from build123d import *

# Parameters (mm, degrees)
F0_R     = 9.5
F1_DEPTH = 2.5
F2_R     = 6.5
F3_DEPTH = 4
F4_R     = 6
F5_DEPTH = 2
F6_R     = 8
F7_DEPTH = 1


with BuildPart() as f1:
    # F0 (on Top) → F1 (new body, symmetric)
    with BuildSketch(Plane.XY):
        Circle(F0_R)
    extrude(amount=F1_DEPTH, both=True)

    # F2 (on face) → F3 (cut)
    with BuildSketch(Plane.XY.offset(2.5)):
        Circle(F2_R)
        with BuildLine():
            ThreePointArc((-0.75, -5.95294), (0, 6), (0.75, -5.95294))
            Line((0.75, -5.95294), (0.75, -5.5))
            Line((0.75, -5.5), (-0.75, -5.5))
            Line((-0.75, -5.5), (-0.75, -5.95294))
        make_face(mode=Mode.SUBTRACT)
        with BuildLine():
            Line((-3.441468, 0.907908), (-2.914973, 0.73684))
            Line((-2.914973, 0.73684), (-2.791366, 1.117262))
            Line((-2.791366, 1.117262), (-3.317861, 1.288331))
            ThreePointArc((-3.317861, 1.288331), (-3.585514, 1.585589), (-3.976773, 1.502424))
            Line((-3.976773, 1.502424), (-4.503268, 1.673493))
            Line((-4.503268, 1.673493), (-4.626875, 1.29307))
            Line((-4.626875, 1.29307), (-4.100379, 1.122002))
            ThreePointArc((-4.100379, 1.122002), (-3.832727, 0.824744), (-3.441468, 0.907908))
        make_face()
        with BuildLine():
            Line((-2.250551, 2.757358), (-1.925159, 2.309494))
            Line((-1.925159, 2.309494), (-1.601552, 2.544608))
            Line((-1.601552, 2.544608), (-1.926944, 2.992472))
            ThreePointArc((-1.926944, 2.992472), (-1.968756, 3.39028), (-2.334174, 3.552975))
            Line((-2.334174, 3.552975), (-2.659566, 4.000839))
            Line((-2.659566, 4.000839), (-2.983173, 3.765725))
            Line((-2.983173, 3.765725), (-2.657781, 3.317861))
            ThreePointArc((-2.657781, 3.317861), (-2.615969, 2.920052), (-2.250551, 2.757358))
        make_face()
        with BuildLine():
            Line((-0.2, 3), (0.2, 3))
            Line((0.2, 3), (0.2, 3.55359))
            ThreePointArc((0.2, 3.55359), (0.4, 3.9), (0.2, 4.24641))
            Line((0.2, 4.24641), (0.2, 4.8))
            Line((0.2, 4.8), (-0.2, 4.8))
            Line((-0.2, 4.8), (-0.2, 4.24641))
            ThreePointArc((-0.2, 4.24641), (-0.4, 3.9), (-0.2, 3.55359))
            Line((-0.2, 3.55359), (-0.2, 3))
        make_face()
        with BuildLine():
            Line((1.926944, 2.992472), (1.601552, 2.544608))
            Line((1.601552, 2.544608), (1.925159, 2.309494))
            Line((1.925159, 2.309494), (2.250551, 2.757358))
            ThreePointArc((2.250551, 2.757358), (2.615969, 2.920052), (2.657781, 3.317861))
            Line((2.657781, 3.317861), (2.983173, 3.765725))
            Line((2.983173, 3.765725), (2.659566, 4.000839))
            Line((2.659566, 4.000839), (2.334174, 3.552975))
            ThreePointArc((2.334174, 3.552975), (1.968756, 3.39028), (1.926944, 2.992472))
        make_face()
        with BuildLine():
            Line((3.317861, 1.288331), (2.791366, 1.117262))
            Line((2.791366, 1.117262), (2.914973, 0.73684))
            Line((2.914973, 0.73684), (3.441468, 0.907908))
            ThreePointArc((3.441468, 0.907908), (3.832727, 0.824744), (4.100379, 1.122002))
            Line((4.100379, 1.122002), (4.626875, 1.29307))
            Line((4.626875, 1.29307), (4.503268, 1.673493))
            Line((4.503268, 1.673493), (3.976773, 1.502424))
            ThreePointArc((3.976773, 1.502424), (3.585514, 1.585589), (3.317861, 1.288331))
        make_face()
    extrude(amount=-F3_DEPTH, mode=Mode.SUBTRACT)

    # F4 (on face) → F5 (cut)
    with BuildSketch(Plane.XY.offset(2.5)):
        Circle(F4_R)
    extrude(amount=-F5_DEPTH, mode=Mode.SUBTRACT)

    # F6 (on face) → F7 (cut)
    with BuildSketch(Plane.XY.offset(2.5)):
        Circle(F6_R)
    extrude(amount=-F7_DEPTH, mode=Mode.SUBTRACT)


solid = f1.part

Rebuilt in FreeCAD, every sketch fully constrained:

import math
import FreeCAD as App
import Part
import Sketcher

V = App.Vector
Q = App.Units.Quantity

doc = App.newDocument("Part")
params = doc.addObject("Spreadsheet::Sheet", "Params")
for row, (alias, value) in enumerate([
    ("sketch1_diameter", "19 mm"),
    ("pad1_length", "5 mm"),
    ("sketch2_diameter", "13 mm"),
    ("sketch2_radius", "6 mm"),
    ("sketch2_radius2", "0.4 mm"),
    ("sketch2_width", "1.5 mm"),
    ("sketch2_width2", "0.4 mm"),
    ("pocket1_length", "4 mm"),
    ("sketch3_diameter", "12 mm"),
    ("pocket2_length", "2 mm"),
    ("sketch4_diameter", "16 mm"),
    ("pocket3_length", "1 mm"),
], start=1):
    params.set(f"A{row}", alias)
    params.set(f"B{row}", "=" + value)
    params.setAlias(f"B{row}", alias)

body = doc.addObject("PartDesign::Body", "Body")

# Sketch on XY plane
sketch1 = body.newObject("Sketcher::SketchObject", "Sketch")
sketch1.AttachmentSupport = (doc.getObject("XY_Plane"), [""])
sketch1.MapMode = "FlatFace"
sketch1.addGeometry(Part.Circle(V(0, 0, 0), V(0, 0, 1), 9.5), False)
sketch1.addConstraint([
    Sketcher.Constraint("Coincident", 0, 3, -1, 1),
    Sketcher.Constraint("Diameter", 0, Q("19 mm")),
])
sketch1.setExpression("Constraints[1]", "Params.sketch1_diameter")
pad1 = body.newObject("PartDesign::Pad", "Pad")
pad1.Profile = sketch1
pad1.setExpression("Length", "Params.pad1_length")
pad1.Midplane = True

# Sketch on XY plane
sketch2 = body.newObject("Sketcher::SketchObject", "Sketch001")
sketch2.AttachmentSupport = (doc.getObject("XY_Plane"), [""])
sketch2.MapMode = "FlatFace"
sketch2.AttachmentOffset = App.Placement(V(0, 0, 2.5), App.Rotation())
sketch2.addGeometry([
    Part.Circle(V(0, 0, 0), V(0, 0, 1), 6.5),  # 0
    Part.LineSegment(V(-0.75, -5.5, 0), V(-0.75, -5.95294, 0)),  # 1
    Part.ArcOfCircle(Part.Circle(V(0, 0, 0), V(0, 0, 1), 6), math.radians(-82.819244), math.radians(262.819244)),  # 2
    Part.LineSegment(V(0.75, -5.95294, 0), V(0.75, -5.5, 0)),  # 3
    Part.LineSegment(V(0.75, -5.5, 0), V(-0.75, -5.5, 0)),  # 4
    Part.LineSegment(V(-3.441468, 0.907908, 0), V(-2.914973, 0.73684, 0)),  # 5
    Part.LineSegment(V(-2.914973, 0.73684, 0), V(-2.791366, 1.117262, 0)),  # 6
    Part.LineSegment(V(-2.791366, 1.117262, 0), V(-3.317861, 1.288331, 0)),  # 7
    Part.ArcOfCircle(Part.Circle(V(-3.70912, 1.205166, 0), V(0, 0, 1), 0.4), math.radians(12.000066), math.radians(132.000011)),  # 8
    Part.LineSegment(V(-3.976773, 1.502424, 0), V(-4.503268, 1.673493, 0)),  # 9
    Part.LineSegment(V(-4.503268, 1.673493, 0), V(-4.626875, 1.29307, 0)),  # 10
    Part.LineSegment(V(-4.626875, 1.29307, 0), V(-4.100379, 1.122002, 0)),  # 11
    Part.ArcOfCircle(Part.Circle(V(-3.70912, 1.205167, 0), V(0, 0, 1), 0.4), math.radians(-168.000005), math.radians(-48.000127)),  # 12
    Part.LineSegment(V(-2.250551, 2.757358, 0), V(-1.925159, 2.309494, 0)),  # 13
    Part.LineSegment(V(-1.925159, 2.309494, 0), V(-1.601552, 2.544608, 0)),  # 14
    Part.LineSegment(V(-1.601552, 2.544608, 0), V(-1.926944, 2.992472, 0)),  # 15
    Part.ArcOfCircle(Part.Circle(V(-2.292363, 3.155166, 0), V(0, 0, 1), 0.400001), math.radians(-23.999796), math.radians(95.999895)),  # 16
    Part.LineSegment(V(-2.334174, 3.552975, 0), V(-2.659566, 4.000839, 0)),  # 17
    Part.LineSegment(V(-2.659566, 4.000839, 0), V(-2.983173, 3.765725, 0)),  # 18
    Part.LineSegment(V(-2.983173, 3.765725, 0), V(-2.657781, 3.317861, 0)),  # 19
    Part.ArcOfCircle(Part.Circle(V(-2.292363, 3.155167, 0), V(0, 0, 1), 0.4), math.radians(156.000058), math.radians(276.00004)),  # 20
    Part.LineSegment(V(-0.2, 3, 0), V(0.2, 3, 0)),  # 21
    Part.LineSegment(V(0.2, 3, 0), V(0.2, 3.55359, 0)),  # 22
    Part.ArcOfCircle(Part.Circle(V(0, 3.9, 0), V(0, 0, 1), 0.4), math.radians(-60.000023), math.radians(60.000023)),  # 23
    Part.LineSegment(V(0.2, 4.24641, 0), V(0.2, 4.8, 0)),  # 24
    Part.LineSegment(V(0.2, 4.8, 0), V(-0.2, 4.8, 0)),  # 25
    Part.LineSegment(V(-0.2, 4.8, 0), V(-0.2, 4.24641, 0)),  # 26
    Part.ArcOfCircle(Part.Circle(V(0, 3.9, 0), V(0, 0, 1), 0.4), math.radians(119.999977), math.radians(240.000023)),  # 27
    Part.LineSegment(V(-0.2, 3.55359, 0), V(-0.2, 3, 0)),  # 28
    Part.LineSegment(V(1.926944, 2.992472, 0), V(1.601552, 2.544608, 0)),  # 29
    Part.LineSegment(V(1.601552, 2.544608, 0), V(1.925159, 2.309494, 0)),  # 30
    Part.LineSegment(V(1.925159, 2.309494, 0), V(2.250551, 2.757358, 0)),  # 31
    Part.ArcOfCircle(Part.Circle(V(2.292363, 3.155167, 0), V(0, 0, 1), 0.4), math.radians(-96.00004), math.radians(23.999942)),  # 32
    Part.LineSegment(V(2.657781, 3.317861, 0), V(2.983173, 3.765725, 0)),  # 33
    Part.LineSegment(V(2.983173, 3.765725, 0), V(2.659566, 4.000839, 0)),  # 34
    Part.LineSegment(V(2.659566, 4.000839, 0), V(2.334174, 3.552975, 0)),  # 35
    Part.ArcOfCircle(Part.Circle(V(2.292363, 3.155166, 0), V(0, 0, 1), 0.400001), math.radians(84.000105), math.radians(203.999796)),  # 36
    Part.LineSegment(V(3.317861, 1.288331, 0), V(2.791366, 1.117262, 0)),  # 37
    Part.LineSegment(V(2.791366, 1.117262, 0), V(2.914973, 0.73684, 0)),  # 38
    Part.LineSegment(V(2.914973, 0.73684, 0), V(3.441468, 0.907908, 0)),  # 39
    Part.ArcOfCircle(Part.Circle(V(3.70912, 1.205167, 0), V(0, 0, 1), 0.4), math.radians(-131.999873), math.radians(-11.999995)),  # 40
    Part.LineSegment(V(4.100379, 1.122002, 0), V(4.626875, 1.29307, 0)),  # 41
    Part.LineSegment(V(4.626875, 1.29307, 0), V(4.503268, 1.673493, 0)),  # 42
    Part.LineSegment(V(4.503268, 1.673493, 0), V(3.976773, 1.502424, 0)),  # 43
    Part.ArcOfCircle(Part.Circle(V(3.70912, 1.205166, 0), V(0, 0, 1), 0.4), math.radians(47.999989), math.radians(167.999934)),  # 44
], False)
sketch2.addConstraint([
    Sketcher.Constraint("Coincident", 1, 2, 2, 2),
    Sketcher.Constraint("Coincident", 2, 1, 3, 1),
    Sketcher.Constraint("Coincident", 3, 2, 4, 1),
    Sketcher.Constraint("Coincident", 4, 2, 1, 1),
    Sketcher.Constraint("Coincident", 5, 2, 6, 1),
    Sketcher.Constraint("Coincident", 6, 2, 7, 1),
    Sketcher.Constraint("Coincident", 7, 2, 8, 1),
    Sketcher.Constraint("Coincident", 8, 2, 9, 1),
    Sketcher.Constraint("Coincident", 9, 2, 10, 1),
    Sketcher.Constraint("Coincident", 10, 2, 11, 1),
    Sketcher.Constraint("Coincident", 11, 2, 12, 1),
    Sketcher.Constraint("Coincident", 12, 2, 5, 1),
    Sketcher.Constraint("Coincident", 13, 2, 14, 1),
    Sketcher.Constraint("Coincident", 14, 2, 15, 1),
    Sketcher.Constraint("Coincident", 15, 2, 16, 1),
    Sketcher.Constraint("Coincident", 16, 2, 17, 1),
    Sketcher.Constraint("Coincident", 17, 2, 18, 1),
    Sketcher.Constraint("Coincident", 18, 2, 19, 1),
    Sketcher.Constraint("Coincident", 19, 2, 20, 1),
    Sketcher.Constraint("Coincident", 20, 2, 13, 1),
    Sketcher.Constraint("Coincident", 21, 2, 22, 1),
    Sketcher.Constraint("Coincident", 22, 2, 23, 1),
    Sketcher.Constraint("Coincident", 23, 2, 24, 1),
    Sketcher.Constraint("Coincident", 24, 2, 25, 1),
    Sketcher.Constraint("Coincident", 25, 2, 26, 1),
    Sketcher.Constraint("Coincident", 26, 2, 27, 1),
    Sketcher.Constraint("Coincident", 27, 2, 28, 1),
    Sketcher.Constraint("Coincident", 28, 2, 21, 1),
    Sketcher.Constraint("Coincident", 29, 2, 30, 1),
    Sketcher.Constraint("Coincident", 30, 2, 31, 1),
    Sketcher.Constraint("Coincident", 31, 2, 32, 1),
    Sketcher.Constraint("Coincident", 32, 2, 33, 1),
    Sketcher.Constraint("Coincident", 33, 2, 34, 1),
    Sketcher.Constraint("Coincident", 34, 2, 35, 1),
    Sketcher.Constraint("Coincident", 35, 2, 36, 1),
    Sketcher.Constraint("Coincident", 36, 2, 29, 1),
    Sketcher.Constraint("Coincident", 37, 2, 38, 1),
    Sketcher.Constraint("Coincident", 38, 2, 39, 1),
    Sketcher.Constraint("Coincident", 39, 2, 40, 1),
    Sketcher.Constraint("Coincident", 40, 2, 41, 1),
    Sketcher.Constraint("Coincident", 41, 2, 42, 1),
    Sketcher.Constraint("Coincident", 42, 2, 43, 1),
    Sketcher.Constraint("Coincident", 43, 2, 44, 1),
    Sketcher.Constraint("Coincident", 44, 2, 37, 1),
    Sketcher.Constraint("Vertical", 1),
    Sketcher.Constraint("Vertical", 3),
    Sketcher.Constraint("Horizontal", 4),
    Sketcher.Constraint("Horizontal", 21),
    Sketcher.Constraint("Vertical", 22),
    Sketcher.Constraint("Vertical", 24),
    Sketcher.Constraint("Horizontal", 25),
    Sketcher.Constraint("Vertical", 26),
    Sketcher.Constraint("Vertical", 28),
    Sketcher.Constraint("Coincident", 0, 3, -1, 1),
    Sketcher.Constraint("Coincident", 2, 3, -1, 1),
    Sketcher.Constraint("Coincident", 12, 3, 8, 3),
    Sketcher.Constraint("Coincident", 20, 3, 16, 3),
    Sketcher.Constraint("Coincident", 27, 3, 23, 3),
    Sketcher.Constraint("Coincident", 36, 3, 32, 3),
    Sketcher.Constraint("Coincident", 44, 3, 40, 3),
    Sketcher.Constraint("Equal", 8, 12),
    Sketcher.Constraint("Equal", 12, 16),
    Sketcher.Constraint("Equal", 16, 20),
    Sketcher.Constraint("Equal", 20, 23),
    Sketcher.Constraint("Equal", 23, 27),
    Sketcher.Constraint("Equal", 27, 32),
    Sketcher.Constraint("Equal", 32, 36),
    Sketcher.Constraint("Equal", 36, 40),
    Sketcher.Constraint("Equal", 40, 44),
    Sketcher.Constraint("Symmetric", 16, 3, 32, 3, -2),
    Sketcher.Constraint("Symmetric", 8, 3, 40, 3, -2),
    Sketcher.Constraint("Symmetric", 23, 2, 26, 2, -2),
    Sketcher.Constraint("Symmetric", 14, 2, 29, 2, -2),
    Sketcher.Constraint("Symmetric", 13, 2, 30, 2, -2),
    Sketcher.Constraint("Symmetric", 18, 2, 33, 2, -2),
    Sketcher.Constraint("Symmetric", 17, 2, 34, 2, -2),
    Sketcher.Constraint("Symmetric", 6, 2, 37, 2, -2),
    Sketcher.Constraint("Symmetric", 5, 2, 38, 2, -2),
    Sketcher.Constraint("Symmetric", 10, 2, 41, 2, -2),
    Sketcher.Constraint("Symmetric", 9, 2, 42, 2, -2),
    Sketcher.Constraint("Perpendicular", 5, 6),
    Sketcher.Constraint("Perpendicular", 6, 7),
    Sketcher.Constraint("Parallel", 7, 9),
    Sketcher.Constraint("Perpendicular", 9, 10),
    Sketcher.Constraint("Perpendicular", 10, 11),
    Sketcher.Constraint("Perpendicular", 13, 14),
    Sketcher.Constraint("Perpendicular", 14, 15),
    Sketcher.Constraint("Parallel", 15, 17),
    Sketcher.Constraint("Perpendicular", 17, 18),
    Sketcher.Constraint("Perpendicular", 18, 19),
    Sketcher.Constraint("Perpendicular", 29, 30),
    Sketcher.Constraint("Perpendicular", 30, 31),
    Sketcher.Constraint("Parallel", 31, 33),
    Sketcher.Constraint("Perpendicular", 34, 35),
    Sketcher.Constraint("Perpendicular", 37, 38),
    Sketcher.Constraint("Perpendicular", 38, 39),
    Sketcher.Constraint("Parallel", 39, 41),
    Sketcher.Constraint("Perpendicular", 42, 43),
    Sketcher.Constraint("Horizontal", 1, 2, 2, 1),
    Sketcher.Constraint("Horizontal", 22, 2, 27, 2),
    Sketcher.Constraint("Vertical", 22, 2, 23, 2),
    Sketcher.Constraint("Equal", 22, 24),
    Sketcher.Constraint("Equal", 5, 7),
    Sketcher.Constraint("Equal", 7, 9),
    Sketcher.Constraint("Equal", 6, 10),
    Sketcher.Constraint("Equal", 9, 11),
    Sketcher.Constraint("Equal", 11, 13),
    Sketcher.Constraint("Equal", 10, 14),
    Sketcher.Constraint("Equal", 13, 15),
    Sketcher.Constraint("Equal", 15, 17),
    Sketcher.Constraint("Equal", 14, 18),
    Sketcher.Constraint("Equal", 17, 19),
    Sketcher.Constraint("Diameter", 0, Q("13 mm")),
    Sketcher.Constraint("Radius", 2, Q("6 mm")),
    Sketcher.Constraint("Radius", 8, Q("0.4 mm")),
    Sketcher.Constraint("Angle", 10, Q("-108.00001 deg")),
    Sketcher.Constraint("DistanceX", 4, 2, 4, 1, Q("1.5 mm")),
    Sketcher.Constraint("DistanceX", 21, 1, 21, 2, Q("0.4 mm")),
    Sketcher.Constraint("DistanceY", -1, 1, 21, 2, Q("3 mm")),
    Sketcher.Constraint("Distance", 6, Q("0.399999 mm")),
    Sketcher.Constraint("DistanceY", -1, 1, 23, 3, Q("3.9 mm")),
    Sketcher.Constraint("DistanceY", 3, 2, -1, 1, Q("5.5 mm")),
    Sketcher.Constraint("DistanceY", 12, 3, 16, 3, Q("1.949999 mm")),
    Sketcher.Constraint("DistanceY", -1, 1, 11, 2, Q("1.122002 mm")),
    Sketcher.Constraint("DistanceX", 18, 2, 16, 2, Q("0.648999 mm")),
    Sketcher.Constraint("DistanceX", 8, 2, 5, 2, Q("1.0618 mm")),
    Sketcher.Constraint("DistanceX", 8, 3, -1, 1, Q("3.70912 mm")),
    Sketcher.Constraint("DistanceX", 13, 2, -1, 1, Q("1.925159 mm")),
])
sketch2.setExpression("Constraints[112]", "Params.sketch2_diameter")
sketch2.setExpression("Constraints[113]", "Params.sketch2_radius")
sketch2.setExpression("Constraints[114]", "Params.sketch2_radius2")
sketch2.setExpression("Constraints[116]", "Params.sketch2_width")
sketch2.setExpression("Constraints[117]", "Params.sketch2_width2")
pocket1 = body.newObject("PartDesign::Pocket", "Pocket")
pocket1.Profile = sketch2
pocket1.setExpression("Length", "Params.pocket1_length")

# Sketch on XY plane
sketch3 = body.newObject("Sketcher::SketchObject", "Sketch002")
sketch3.AttachmentSupport = (doc.getObject("XY_Plane"), [""])
sketch3.MapMode = "FlatFace"
sketch3.AttachmentOffset = App.Placement(V(0, 0, 2.5), App.Rotation())
sketch3.addGeometry(Part.Circle(V(0, 0, 0), V(0, 0, 1), 6), False)
sketch3.addConstraint([
    Sketcher.Constraint("Coincident", 0, 3, -1, 1),
    Sketcher.Constraint("Diameter", 0, Q("12 mm")),
])
sketch3.setExpression("Constraints[1]", "Params.sketch3_diameter")
pocket2 = body.newObject("PartDesign::Pocket", "Pocket001")
pocket2.Profile = sketch3
pocket2.setExpression("Length", "Params.pocket2_length")

# Sketch on XY plane
sketch4 = body.newObject("Sketcher::SketchObject", "Sketch003")
sketch4.AttachmentSupport = (doc.getObject("XY_Plane"), [""])
sketch4.MapMode = "FlatFace"
sketch4.AttachmentOffset = App.Placement(V(0, 0, 2.5), App.Rotation())
sketch4.addGeometry(Part.Circle(V(0, 0, 0), V(0, 0, 1), 8), False)
sketch4.addConstraint([
    Sketcher.Constraint("Coincident", 0, 3, -1, 1),
    Sketcher.Constraint("Diameter", 0, Q("16 mm")),
])
sketch4.setExpression("Constraints[1]", "Params.sketch4_diameter")
pocket3 = body.newObject("PartDesign::Pocket", "Pocket002")
pocket3.Profile = sketch4
pocket3.setExpression("Length", "Params.pocket3_length")

doc.recompute()
